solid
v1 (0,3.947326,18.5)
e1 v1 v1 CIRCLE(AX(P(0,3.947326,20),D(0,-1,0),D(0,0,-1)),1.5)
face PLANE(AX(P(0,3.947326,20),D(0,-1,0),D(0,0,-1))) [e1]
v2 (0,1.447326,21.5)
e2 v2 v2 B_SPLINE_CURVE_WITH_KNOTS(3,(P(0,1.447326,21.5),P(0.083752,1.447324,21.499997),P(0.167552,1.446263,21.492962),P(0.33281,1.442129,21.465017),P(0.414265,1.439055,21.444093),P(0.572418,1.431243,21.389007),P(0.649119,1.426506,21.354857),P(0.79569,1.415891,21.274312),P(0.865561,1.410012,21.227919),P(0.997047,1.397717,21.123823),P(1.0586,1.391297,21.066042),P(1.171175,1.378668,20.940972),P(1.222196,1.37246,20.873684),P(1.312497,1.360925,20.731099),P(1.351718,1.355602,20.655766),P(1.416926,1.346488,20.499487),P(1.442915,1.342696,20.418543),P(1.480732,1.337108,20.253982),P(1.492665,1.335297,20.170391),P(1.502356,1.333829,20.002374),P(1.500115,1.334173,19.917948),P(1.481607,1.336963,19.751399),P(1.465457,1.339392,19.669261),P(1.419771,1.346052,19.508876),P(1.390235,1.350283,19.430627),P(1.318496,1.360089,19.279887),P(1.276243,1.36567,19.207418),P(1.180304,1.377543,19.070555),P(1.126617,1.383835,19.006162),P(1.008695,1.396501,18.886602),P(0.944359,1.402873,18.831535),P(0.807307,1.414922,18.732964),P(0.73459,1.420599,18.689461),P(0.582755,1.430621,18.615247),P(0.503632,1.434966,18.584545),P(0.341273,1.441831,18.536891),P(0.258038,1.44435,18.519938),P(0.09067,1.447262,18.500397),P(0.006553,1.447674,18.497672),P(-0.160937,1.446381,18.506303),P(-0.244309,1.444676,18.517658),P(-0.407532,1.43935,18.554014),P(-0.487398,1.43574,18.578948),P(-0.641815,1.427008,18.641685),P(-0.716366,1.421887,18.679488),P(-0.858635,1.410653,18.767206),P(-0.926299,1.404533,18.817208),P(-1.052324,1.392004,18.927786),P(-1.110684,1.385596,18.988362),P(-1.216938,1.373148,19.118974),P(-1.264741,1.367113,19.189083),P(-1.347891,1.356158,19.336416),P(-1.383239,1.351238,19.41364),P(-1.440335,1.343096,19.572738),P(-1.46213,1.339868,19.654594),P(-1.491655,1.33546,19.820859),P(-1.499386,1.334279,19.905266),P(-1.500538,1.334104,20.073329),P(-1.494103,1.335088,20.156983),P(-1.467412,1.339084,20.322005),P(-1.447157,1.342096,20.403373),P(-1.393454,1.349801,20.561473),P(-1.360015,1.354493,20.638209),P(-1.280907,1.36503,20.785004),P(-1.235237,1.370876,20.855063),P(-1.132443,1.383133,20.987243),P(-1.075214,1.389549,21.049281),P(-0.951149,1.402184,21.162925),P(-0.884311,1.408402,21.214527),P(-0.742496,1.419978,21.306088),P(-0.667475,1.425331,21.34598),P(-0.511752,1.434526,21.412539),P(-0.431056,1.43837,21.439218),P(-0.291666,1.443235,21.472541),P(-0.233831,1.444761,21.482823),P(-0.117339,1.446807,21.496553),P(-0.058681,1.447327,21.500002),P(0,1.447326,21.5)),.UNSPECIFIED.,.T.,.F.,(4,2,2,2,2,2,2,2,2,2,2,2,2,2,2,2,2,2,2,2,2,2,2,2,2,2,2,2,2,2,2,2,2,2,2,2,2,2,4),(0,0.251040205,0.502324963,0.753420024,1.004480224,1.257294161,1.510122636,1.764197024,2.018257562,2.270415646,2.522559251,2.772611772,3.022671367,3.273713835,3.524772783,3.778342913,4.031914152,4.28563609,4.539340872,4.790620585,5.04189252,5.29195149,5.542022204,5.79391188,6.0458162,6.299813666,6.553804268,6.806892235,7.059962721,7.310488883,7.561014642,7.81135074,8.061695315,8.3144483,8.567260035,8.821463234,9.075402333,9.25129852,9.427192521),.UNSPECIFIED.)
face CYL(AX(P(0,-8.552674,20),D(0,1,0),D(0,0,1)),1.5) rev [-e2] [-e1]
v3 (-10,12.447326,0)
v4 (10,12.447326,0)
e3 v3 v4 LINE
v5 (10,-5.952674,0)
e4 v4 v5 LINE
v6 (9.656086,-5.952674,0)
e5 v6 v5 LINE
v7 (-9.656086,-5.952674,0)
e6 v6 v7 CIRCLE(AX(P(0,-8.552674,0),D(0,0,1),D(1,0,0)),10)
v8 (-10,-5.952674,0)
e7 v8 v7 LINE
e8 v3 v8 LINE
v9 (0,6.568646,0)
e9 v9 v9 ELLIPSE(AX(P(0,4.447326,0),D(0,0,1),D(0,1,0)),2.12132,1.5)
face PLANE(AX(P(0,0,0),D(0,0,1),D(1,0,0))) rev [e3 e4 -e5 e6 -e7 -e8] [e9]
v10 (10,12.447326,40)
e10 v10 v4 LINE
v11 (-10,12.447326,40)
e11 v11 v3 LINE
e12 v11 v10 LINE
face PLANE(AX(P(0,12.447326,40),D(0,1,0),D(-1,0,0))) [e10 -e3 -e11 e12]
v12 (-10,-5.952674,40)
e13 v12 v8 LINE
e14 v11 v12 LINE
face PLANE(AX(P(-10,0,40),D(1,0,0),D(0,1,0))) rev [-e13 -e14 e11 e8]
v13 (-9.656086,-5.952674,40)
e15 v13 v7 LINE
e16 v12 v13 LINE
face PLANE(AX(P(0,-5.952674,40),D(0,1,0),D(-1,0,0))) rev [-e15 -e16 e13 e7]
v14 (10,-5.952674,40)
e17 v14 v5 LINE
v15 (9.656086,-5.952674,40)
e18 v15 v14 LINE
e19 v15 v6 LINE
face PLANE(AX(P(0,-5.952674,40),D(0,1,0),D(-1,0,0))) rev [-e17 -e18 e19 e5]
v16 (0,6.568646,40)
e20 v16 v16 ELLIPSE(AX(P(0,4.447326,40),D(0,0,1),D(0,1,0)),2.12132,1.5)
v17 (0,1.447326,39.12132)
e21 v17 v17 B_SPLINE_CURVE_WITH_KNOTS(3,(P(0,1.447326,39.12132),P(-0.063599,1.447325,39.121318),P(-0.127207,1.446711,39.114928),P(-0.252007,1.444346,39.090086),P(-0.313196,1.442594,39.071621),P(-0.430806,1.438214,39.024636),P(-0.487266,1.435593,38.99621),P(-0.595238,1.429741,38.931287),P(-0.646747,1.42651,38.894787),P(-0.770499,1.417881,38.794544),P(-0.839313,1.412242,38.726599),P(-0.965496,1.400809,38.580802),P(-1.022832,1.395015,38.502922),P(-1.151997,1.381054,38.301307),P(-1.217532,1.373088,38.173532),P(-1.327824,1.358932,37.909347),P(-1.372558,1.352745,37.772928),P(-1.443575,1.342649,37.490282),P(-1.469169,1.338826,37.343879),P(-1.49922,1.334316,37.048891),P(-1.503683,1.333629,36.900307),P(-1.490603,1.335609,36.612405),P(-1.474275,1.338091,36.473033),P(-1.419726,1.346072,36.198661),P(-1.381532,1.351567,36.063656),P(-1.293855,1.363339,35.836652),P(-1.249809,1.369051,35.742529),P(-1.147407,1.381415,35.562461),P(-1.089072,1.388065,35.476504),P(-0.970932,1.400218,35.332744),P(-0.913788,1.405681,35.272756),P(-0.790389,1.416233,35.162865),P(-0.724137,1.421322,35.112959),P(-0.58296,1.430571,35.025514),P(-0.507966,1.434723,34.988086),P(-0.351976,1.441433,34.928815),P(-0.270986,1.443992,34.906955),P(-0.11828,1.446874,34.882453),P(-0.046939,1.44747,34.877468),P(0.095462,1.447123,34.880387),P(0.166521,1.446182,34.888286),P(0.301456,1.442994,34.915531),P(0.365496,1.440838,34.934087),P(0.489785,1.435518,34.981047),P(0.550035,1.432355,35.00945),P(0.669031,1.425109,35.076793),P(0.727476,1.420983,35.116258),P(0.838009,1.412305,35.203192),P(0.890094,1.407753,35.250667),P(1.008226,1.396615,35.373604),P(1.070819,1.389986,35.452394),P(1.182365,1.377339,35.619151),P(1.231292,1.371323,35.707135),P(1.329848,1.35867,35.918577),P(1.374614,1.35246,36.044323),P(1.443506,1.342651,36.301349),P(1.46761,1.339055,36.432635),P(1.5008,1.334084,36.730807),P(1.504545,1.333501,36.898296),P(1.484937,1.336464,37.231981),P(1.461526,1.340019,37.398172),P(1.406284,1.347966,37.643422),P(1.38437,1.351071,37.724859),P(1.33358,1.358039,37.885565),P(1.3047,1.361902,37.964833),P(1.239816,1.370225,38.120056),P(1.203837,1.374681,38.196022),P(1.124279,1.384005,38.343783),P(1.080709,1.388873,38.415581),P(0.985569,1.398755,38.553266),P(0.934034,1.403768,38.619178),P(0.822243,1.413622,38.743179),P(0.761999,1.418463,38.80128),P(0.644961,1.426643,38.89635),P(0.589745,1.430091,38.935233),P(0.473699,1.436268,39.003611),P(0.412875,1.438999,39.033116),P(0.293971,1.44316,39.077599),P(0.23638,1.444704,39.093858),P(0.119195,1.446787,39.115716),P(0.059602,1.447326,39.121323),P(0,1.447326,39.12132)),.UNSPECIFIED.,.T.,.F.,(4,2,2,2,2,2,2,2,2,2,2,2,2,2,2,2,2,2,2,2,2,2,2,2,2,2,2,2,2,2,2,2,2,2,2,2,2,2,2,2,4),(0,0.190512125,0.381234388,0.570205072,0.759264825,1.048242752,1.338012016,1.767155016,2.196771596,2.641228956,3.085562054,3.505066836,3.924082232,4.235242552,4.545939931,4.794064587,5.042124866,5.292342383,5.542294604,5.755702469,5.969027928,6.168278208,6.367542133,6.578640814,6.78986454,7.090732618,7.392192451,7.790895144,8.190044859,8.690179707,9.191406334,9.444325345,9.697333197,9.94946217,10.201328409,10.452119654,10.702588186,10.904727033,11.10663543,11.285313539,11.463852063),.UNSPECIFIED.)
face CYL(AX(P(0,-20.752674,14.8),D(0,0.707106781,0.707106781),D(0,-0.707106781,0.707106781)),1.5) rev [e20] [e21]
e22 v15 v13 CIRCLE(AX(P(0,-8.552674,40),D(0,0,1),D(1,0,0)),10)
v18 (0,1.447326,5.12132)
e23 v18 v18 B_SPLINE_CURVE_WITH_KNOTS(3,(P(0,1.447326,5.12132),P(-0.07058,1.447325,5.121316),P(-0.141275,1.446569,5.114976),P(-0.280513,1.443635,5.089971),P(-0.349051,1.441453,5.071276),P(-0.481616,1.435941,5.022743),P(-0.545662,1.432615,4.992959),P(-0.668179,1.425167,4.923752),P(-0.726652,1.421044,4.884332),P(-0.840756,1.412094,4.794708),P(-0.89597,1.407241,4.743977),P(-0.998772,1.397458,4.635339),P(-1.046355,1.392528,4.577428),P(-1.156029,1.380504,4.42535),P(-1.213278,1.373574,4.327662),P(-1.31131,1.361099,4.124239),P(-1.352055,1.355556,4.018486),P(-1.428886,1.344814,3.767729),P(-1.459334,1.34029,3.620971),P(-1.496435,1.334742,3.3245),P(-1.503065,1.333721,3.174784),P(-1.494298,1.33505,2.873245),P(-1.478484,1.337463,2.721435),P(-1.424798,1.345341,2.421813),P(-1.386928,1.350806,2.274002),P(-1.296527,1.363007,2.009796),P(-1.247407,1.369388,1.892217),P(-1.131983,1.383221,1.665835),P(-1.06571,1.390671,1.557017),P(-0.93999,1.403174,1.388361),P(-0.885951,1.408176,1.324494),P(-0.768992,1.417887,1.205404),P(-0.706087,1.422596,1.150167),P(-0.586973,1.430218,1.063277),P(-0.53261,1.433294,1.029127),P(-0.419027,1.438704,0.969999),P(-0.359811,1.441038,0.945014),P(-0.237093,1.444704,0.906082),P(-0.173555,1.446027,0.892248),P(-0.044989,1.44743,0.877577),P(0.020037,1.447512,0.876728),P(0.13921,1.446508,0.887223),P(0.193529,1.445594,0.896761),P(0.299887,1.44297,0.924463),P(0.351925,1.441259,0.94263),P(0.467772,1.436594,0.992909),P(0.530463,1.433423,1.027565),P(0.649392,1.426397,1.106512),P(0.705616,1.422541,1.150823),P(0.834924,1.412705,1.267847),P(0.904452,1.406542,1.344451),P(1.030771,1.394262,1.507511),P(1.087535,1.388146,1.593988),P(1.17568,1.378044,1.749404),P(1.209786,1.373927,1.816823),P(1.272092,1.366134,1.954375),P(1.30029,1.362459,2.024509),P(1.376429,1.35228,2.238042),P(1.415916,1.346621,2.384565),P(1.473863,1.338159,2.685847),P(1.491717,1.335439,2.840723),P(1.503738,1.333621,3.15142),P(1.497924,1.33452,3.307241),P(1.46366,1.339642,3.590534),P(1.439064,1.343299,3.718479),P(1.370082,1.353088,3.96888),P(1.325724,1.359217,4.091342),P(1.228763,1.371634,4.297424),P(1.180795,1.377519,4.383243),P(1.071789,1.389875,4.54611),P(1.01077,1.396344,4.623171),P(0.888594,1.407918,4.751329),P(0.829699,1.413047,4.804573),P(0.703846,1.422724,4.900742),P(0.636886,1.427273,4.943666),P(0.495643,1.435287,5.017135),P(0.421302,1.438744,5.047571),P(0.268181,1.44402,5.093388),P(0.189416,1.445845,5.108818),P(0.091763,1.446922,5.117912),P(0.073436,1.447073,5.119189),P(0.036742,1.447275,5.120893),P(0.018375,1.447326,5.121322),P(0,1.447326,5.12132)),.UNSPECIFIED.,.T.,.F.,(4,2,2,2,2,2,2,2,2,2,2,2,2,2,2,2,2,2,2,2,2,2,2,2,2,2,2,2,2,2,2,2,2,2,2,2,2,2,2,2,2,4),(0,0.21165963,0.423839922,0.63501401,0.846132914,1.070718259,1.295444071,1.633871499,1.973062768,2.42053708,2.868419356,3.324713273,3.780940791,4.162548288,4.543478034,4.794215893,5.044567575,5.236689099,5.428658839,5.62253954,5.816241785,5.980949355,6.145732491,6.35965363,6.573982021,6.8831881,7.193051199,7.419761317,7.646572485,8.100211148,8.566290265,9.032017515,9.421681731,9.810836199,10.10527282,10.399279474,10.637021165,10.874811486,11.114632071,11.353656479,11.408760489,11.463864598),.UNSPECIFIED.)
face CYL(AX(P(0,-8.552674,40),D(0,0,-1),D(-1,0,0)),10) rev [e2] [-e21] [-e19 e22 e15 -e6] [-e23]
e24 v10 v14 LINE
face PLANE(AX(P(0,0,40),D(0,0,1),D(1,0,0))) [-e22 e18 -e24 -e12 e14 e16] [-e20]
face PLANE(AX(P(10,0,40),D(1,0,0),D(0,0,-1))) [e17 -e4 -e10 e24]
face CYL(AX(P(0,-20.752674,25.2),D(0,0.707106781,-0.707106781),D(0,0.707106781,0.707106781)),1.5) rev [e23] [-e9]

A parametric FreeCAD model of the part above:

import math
import FreeCAD as App
import Part
import Sketcher
from FreeCAD import Vector

doc = App.newDocument("Part")
body = doc.addObject("PartDesign::Body", "Body")

sketch1 = body.newObject("Sketcher::SketchObject", "Sketch")
sketch1.AttachmentSupport = (doc.getObject("XY_Plane"), [""])
sketch1.MapMode = "FlatFace"
sketch1.addGeometry([
    Part.LineSegment(Vector(10, 12.45, 0), Vector(-10, 12.45, 0)),
    Part.LineSegment(Vector(-10, 12.45, 0), Vector(-10, -5.95, 0)),
    Part.LineSegment(Vector(-10, -5.95, 0), Vector(-9.66, -5.95, 0)),
    Part.ArcOfCircle(Part.Circle(Vector(0, -8.55, 0), Vector(0, 0, 1), 10), math.radians(90), math.radians(165)),
    Part.ArcOfCircle(Part.Circle(Vector(0, -8.55, 0), Vector(0, 0, 1), 10), math.radians(15), math.radians(90)),
    Part.LineSegment(Vector(9.66, -5.95, 0), Vector(10, -5.95, 0)),
    Part.LineSegment(Vector(10, -5.95, 0), Vector(10, 12.45, 0)),
], False)
sketch1.addConstraint([
    Sketcher.Constraint("Coincident", 0, 2, 1, 1),
    Sketcher.Constraint("Coincident", 1, 2, 2, 1),
    Sketcher.Constraint("Coincident", 2, 2, 3, 2),
    Sketcher.Constraint("Tangent", 3, 1, 4, 2),
    Sketcher.Constraint("Coincident", 4, 1, 5, 1),
    Sketcher.Constraint("Coincident", 5, 2, 6, 1),
    Sketcher.Constraint("Coincident", 6, 2, 0, 1),
    Sketcher.Constraint("Horizontal", 0),
    Sketcher.Constraint("Vertical", 1),
    Sketcher.Constraint("Horizontal", 2),
    Sketcher.Constraint("Horizontal", 5),
    Sketcher.Constraint("Vertical", 6),
    Sketcher.Constraint("Equal", 3, 4),
    Sketcher.Constraint("Symmetric", 2, 2, 4, 1, -2),
    Sketcher.Constraint("PointOnObject", 3, 1, -2),
    Sketcher.Constraint("Equal", 2, 5),
    Sketcher.Constraint("Radius", 3, 10.0),
    Sketcher.Constraint("DistanceX", 0, 2, 0, 1, 20.0),
    Sketcher.Constraint("DistanceY", 1, 2, 1, 1, 18.4),
    Sketcher.Constraint("DistanceY", 4, 3, 0, 2, 21.0),
    Sketcher.Constraint("DistanceY", 3, 3, -1, 1, 8.552674),
])
pad1 = body.newObject("PartDesign::Pad", "Pad")
pad1.Profile = sketch1
pad1.Length = 40

sketch2 = body.newObject("Sketcher::SketchObject", "Sketch001")
sketch2.Placement = App.Placement(Vector(0, 22.223663, 22.223663), App.Rotation(Vector(0, -0.707106781, 0.707106781), Vector(0.999999999, 0, 0), Vector(0, 0.707106781, 0.707106781), "ZXY"))
sketch2.addGeometry(Part.Circle(Vector(25.1, 0, 0), Vector(0, 0, 1), 1.5), False)
sketch2.addConstraint([
    Sketcher.Constraint("PointOnObject", 0, 3, -1),
    Sketcher.Constraint("Diameter", 0, 3.0),
    Sketcher.Constraint("DistanceX", -1, 1, 0, 3, 25.139537),
])
pocket1 = body.newObject("PartDesign::Pocket", "Pocket")
pocket1.Profile = sketch2
pocket1.Type = "ThroughAll"
pocket1.Midplane = True

sketch3 = body.newObject("Sketcher::SketchObject", "Sketch002")
sketch3.Placement = App.Placement(Vector(0, 2.223663, -2.223663), App.Rotation(Vector(0, 0.707106781, 0.707106781), Vector(0.999999999, 0, 0), Vector(0, 0.707106781, -0.707106781), "ZXY"))
sketch3.addGeometry(Part.Circle(Vector(3.1, 0, 0), Vector(0, 0, 1), 1.5), False)
sketch3.addConstraint([
    Sketcher.Constraint("PointOnObject", 0, 3, -1),
    Sketcher.Constraint("Diameter", 0, 3.0),
    Sketcher.Constraint("DistanceX", -1, 1, 0, 3, 3.144734),
])
pocket2 = body.newObject("PartDesign::Pocket", "Pocket001")
pocket2.Profile = sketch3
pocket2.Type = "ThroughAll"
pocket2.Midplane = True

sketch4 = body.newObject("Sketcher::SketchObject", "Sketch003")
sketch4.AttachmentSupport = (doc.getObject("XZ_Plane"), [""])
sketch4.MapMode = "FlatFace"
sketch4.AttachmentOffset = App.Placement(Vector(0, 0, -1.447326), App.Rotation())
sketch4.addGeometry(Part.Circle(Vector(0, 20, 0), Vector(0, 0, 1), 1.5), False)
sketch4.addConstraint([
    Sketcher.Constraint("PointOnObject", 0, 3, -2),
    Sketcher.Constraint("Diameter", 0, 3.0),
    Sketcher.Constraint("DistanceY", -1, 1, 0, 3, 20.0),
])
pocket3 = body.newObject("PartDesign::Pocket", "Pocket002")
pocket3.Profile = sketch4
pocket3.Type = "TwoLengths"
pocket3.Length = 10
pocket3.Length2 = 2.5
pocket3.Reversed = True

doc.recompute()
